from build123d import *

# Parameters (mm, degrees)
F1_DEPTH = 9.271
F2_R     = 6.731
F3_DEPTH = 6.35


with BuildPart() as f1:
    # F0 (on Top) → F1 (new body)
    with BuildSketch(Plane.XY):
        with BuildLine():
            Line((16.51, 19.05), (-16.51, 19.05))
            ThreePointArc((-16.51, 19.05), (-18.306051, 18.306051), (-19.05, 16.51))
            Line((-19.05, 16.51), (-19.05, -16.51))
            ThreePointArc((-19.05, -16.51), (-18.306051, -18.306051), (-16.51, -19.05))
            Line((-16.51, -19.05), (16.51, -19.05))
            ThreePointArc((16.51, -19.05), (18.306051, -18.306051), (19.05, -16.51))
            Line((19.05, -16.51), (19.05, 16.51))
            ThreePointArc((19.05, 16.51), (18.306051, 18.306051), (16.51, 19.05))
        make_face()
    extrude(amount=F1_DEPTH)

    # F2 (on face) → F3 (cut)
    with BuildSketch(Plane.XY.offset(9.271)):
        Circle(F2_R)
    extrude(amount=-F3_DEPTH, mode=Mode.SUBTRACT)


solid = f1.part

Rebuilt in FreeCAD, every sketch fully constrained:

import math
import FreeCAD as App
import Part
import Sketcher
Q = App.Units.Quantity

doc = App.newDocument("Part")
body = doc.addObject("PartDesign::Body", "Body")

# Sketch on XY plane
sketch1 = doc.addObject("Sketcher::SketchObject", "Sketch")
body.addObject(sketch1)
sketch1.AttachmentSupport = (doc.XY_Plane, [""])
sketch1.MapMode = "FlatFace"
sketch1.addGeometry([
    Part.LineSegment(App.Vector(16.51, 19.05, 0), App.Vector(-16.51, 19.05, 0)),  # 0
    Part.ArcOfCircle(Part.Circle(App.Vector(-16.509999, 16.509999, 0), App.Vector(0, 0, 1), 2.540001), math.radians(90.000017), math.radians(179.999983)),  # 1
    Part.LineSegment(App.Vector(-19.05, 16.51, 0), App.Vector(-19.05, -16.51, 0)),  # 2
    Part.ArcOfCircle(Part.Circle(App.Vector(-16.509999, -16.509999, 0), App.Vector(0, 0, 1), 2.540001), math.radians(-179.999983), math.radians(-90.000017)),  # 3
    Part.LineSegment(App.Vector(-16.51, -19.05, 0), App.Vector(16.51, -19.05, 0)),  # 4
    Part.ArcOfCircle(Part.Circle(App.Vector(16.509999, -16.509999, 0), App.Vector(0, 0, 1), 2.540001), math.radians(-89.999983), math.radians(-0.000017)),  # 5
    Part.LineSegment(App.Vector(19.05, -16.51, 0), App.Vector(19.05, 16.51, 0)),  # 6
    Part.ArcOfCircle(Part.Circle(App.Vector(16.509999, 16.509999, 0), App.Vector(0, 0, 1), 2.540001), math.radians(0.000017), math.radians(89.999983)),  # 7
], False)
sketch1.addConstraint([
    Sketcher.Constraint("Tangent", 0, 2, 1, 1),
    Sketcher.Constraint("Tangent", 1, 2, 2, 1),
    Sketcher.Constraint("Tangent", 2, 2, 3, 1),
    Sketcher.Constraint("Tangent", 3, 2, 4, 1),
    Sketcher.Constraint("Tangent", 4, 2, 5, 1),
    Sketcher.Constraint("Tangent", 5, 2, 6, 1),
    Sketcher.Constraint("Tangent", 6, 2, 7, 1),
    Sketcher.Constraint("Tangent", 7, 2, 0, 1),
    Sketcher.Constraint("Horizontal", 0),
    Sketcher.Constraint("Vertical", 2),
    Sketcher.Constraint("Horizontal", 4),
    Sketcher.Constraint("Vertical", 6),
    Sketcher.Constraint("Equal", 1, 3),
    Sketcher.Constraint("Equal", 3, 5),
    Sketcher.Constraint("Equal", 5, 7),
    Sketcher.Constraint("Symmetric", 1, 3, 5, 3, -1, 1),
    Sketcher.Constraint("Equal", 4, 2),
    Sketcher.Constraint("Radius", 1, Q("0.1 in")),
    Sketcher.Constraint("DistanceX", 0, 2, 0, 1, Q("1.3 in")),
])
pad1 = doc.addObject("PartDesign::Pad", "Pad")
body.addObject(pad1)
pad1.Profile = sketch1
pad1.Length = Q("0.365 in")

# Sketch on XY plane
sketch2 = doc.addObject("Sketcher::SketchObject", "Sketch001")
body.addObject(sketch2)
sketch2.AttachmentSupport = (doc.XY_Plane, [""])
sketch2.MapMode = "FlatFace"
sketch2.AttachmentOffset = App.Placement(App.Vector(0, 0, 0.365 * 25.4), App.Rotation())
sketch2.addGeometry(Part.Circle(App.Vector(0, 0, 0), App.Vector(0, 0, 1), 6.731), False)
sketch2.addConstraint([
    Sketcher.Constraint("Coincident", 0, 3, -1, 1),
    Sketcher.Constraint("Diameter", 0, Q("0.53 in")),
])
pocket1 = doc.addObject("PartDesign::Pocket", "Pocket")
body.addObject(pocket1)
pocket1.Profile = sketch2
pocket1.Length = Q("0.25 in")

doc.recompute()
